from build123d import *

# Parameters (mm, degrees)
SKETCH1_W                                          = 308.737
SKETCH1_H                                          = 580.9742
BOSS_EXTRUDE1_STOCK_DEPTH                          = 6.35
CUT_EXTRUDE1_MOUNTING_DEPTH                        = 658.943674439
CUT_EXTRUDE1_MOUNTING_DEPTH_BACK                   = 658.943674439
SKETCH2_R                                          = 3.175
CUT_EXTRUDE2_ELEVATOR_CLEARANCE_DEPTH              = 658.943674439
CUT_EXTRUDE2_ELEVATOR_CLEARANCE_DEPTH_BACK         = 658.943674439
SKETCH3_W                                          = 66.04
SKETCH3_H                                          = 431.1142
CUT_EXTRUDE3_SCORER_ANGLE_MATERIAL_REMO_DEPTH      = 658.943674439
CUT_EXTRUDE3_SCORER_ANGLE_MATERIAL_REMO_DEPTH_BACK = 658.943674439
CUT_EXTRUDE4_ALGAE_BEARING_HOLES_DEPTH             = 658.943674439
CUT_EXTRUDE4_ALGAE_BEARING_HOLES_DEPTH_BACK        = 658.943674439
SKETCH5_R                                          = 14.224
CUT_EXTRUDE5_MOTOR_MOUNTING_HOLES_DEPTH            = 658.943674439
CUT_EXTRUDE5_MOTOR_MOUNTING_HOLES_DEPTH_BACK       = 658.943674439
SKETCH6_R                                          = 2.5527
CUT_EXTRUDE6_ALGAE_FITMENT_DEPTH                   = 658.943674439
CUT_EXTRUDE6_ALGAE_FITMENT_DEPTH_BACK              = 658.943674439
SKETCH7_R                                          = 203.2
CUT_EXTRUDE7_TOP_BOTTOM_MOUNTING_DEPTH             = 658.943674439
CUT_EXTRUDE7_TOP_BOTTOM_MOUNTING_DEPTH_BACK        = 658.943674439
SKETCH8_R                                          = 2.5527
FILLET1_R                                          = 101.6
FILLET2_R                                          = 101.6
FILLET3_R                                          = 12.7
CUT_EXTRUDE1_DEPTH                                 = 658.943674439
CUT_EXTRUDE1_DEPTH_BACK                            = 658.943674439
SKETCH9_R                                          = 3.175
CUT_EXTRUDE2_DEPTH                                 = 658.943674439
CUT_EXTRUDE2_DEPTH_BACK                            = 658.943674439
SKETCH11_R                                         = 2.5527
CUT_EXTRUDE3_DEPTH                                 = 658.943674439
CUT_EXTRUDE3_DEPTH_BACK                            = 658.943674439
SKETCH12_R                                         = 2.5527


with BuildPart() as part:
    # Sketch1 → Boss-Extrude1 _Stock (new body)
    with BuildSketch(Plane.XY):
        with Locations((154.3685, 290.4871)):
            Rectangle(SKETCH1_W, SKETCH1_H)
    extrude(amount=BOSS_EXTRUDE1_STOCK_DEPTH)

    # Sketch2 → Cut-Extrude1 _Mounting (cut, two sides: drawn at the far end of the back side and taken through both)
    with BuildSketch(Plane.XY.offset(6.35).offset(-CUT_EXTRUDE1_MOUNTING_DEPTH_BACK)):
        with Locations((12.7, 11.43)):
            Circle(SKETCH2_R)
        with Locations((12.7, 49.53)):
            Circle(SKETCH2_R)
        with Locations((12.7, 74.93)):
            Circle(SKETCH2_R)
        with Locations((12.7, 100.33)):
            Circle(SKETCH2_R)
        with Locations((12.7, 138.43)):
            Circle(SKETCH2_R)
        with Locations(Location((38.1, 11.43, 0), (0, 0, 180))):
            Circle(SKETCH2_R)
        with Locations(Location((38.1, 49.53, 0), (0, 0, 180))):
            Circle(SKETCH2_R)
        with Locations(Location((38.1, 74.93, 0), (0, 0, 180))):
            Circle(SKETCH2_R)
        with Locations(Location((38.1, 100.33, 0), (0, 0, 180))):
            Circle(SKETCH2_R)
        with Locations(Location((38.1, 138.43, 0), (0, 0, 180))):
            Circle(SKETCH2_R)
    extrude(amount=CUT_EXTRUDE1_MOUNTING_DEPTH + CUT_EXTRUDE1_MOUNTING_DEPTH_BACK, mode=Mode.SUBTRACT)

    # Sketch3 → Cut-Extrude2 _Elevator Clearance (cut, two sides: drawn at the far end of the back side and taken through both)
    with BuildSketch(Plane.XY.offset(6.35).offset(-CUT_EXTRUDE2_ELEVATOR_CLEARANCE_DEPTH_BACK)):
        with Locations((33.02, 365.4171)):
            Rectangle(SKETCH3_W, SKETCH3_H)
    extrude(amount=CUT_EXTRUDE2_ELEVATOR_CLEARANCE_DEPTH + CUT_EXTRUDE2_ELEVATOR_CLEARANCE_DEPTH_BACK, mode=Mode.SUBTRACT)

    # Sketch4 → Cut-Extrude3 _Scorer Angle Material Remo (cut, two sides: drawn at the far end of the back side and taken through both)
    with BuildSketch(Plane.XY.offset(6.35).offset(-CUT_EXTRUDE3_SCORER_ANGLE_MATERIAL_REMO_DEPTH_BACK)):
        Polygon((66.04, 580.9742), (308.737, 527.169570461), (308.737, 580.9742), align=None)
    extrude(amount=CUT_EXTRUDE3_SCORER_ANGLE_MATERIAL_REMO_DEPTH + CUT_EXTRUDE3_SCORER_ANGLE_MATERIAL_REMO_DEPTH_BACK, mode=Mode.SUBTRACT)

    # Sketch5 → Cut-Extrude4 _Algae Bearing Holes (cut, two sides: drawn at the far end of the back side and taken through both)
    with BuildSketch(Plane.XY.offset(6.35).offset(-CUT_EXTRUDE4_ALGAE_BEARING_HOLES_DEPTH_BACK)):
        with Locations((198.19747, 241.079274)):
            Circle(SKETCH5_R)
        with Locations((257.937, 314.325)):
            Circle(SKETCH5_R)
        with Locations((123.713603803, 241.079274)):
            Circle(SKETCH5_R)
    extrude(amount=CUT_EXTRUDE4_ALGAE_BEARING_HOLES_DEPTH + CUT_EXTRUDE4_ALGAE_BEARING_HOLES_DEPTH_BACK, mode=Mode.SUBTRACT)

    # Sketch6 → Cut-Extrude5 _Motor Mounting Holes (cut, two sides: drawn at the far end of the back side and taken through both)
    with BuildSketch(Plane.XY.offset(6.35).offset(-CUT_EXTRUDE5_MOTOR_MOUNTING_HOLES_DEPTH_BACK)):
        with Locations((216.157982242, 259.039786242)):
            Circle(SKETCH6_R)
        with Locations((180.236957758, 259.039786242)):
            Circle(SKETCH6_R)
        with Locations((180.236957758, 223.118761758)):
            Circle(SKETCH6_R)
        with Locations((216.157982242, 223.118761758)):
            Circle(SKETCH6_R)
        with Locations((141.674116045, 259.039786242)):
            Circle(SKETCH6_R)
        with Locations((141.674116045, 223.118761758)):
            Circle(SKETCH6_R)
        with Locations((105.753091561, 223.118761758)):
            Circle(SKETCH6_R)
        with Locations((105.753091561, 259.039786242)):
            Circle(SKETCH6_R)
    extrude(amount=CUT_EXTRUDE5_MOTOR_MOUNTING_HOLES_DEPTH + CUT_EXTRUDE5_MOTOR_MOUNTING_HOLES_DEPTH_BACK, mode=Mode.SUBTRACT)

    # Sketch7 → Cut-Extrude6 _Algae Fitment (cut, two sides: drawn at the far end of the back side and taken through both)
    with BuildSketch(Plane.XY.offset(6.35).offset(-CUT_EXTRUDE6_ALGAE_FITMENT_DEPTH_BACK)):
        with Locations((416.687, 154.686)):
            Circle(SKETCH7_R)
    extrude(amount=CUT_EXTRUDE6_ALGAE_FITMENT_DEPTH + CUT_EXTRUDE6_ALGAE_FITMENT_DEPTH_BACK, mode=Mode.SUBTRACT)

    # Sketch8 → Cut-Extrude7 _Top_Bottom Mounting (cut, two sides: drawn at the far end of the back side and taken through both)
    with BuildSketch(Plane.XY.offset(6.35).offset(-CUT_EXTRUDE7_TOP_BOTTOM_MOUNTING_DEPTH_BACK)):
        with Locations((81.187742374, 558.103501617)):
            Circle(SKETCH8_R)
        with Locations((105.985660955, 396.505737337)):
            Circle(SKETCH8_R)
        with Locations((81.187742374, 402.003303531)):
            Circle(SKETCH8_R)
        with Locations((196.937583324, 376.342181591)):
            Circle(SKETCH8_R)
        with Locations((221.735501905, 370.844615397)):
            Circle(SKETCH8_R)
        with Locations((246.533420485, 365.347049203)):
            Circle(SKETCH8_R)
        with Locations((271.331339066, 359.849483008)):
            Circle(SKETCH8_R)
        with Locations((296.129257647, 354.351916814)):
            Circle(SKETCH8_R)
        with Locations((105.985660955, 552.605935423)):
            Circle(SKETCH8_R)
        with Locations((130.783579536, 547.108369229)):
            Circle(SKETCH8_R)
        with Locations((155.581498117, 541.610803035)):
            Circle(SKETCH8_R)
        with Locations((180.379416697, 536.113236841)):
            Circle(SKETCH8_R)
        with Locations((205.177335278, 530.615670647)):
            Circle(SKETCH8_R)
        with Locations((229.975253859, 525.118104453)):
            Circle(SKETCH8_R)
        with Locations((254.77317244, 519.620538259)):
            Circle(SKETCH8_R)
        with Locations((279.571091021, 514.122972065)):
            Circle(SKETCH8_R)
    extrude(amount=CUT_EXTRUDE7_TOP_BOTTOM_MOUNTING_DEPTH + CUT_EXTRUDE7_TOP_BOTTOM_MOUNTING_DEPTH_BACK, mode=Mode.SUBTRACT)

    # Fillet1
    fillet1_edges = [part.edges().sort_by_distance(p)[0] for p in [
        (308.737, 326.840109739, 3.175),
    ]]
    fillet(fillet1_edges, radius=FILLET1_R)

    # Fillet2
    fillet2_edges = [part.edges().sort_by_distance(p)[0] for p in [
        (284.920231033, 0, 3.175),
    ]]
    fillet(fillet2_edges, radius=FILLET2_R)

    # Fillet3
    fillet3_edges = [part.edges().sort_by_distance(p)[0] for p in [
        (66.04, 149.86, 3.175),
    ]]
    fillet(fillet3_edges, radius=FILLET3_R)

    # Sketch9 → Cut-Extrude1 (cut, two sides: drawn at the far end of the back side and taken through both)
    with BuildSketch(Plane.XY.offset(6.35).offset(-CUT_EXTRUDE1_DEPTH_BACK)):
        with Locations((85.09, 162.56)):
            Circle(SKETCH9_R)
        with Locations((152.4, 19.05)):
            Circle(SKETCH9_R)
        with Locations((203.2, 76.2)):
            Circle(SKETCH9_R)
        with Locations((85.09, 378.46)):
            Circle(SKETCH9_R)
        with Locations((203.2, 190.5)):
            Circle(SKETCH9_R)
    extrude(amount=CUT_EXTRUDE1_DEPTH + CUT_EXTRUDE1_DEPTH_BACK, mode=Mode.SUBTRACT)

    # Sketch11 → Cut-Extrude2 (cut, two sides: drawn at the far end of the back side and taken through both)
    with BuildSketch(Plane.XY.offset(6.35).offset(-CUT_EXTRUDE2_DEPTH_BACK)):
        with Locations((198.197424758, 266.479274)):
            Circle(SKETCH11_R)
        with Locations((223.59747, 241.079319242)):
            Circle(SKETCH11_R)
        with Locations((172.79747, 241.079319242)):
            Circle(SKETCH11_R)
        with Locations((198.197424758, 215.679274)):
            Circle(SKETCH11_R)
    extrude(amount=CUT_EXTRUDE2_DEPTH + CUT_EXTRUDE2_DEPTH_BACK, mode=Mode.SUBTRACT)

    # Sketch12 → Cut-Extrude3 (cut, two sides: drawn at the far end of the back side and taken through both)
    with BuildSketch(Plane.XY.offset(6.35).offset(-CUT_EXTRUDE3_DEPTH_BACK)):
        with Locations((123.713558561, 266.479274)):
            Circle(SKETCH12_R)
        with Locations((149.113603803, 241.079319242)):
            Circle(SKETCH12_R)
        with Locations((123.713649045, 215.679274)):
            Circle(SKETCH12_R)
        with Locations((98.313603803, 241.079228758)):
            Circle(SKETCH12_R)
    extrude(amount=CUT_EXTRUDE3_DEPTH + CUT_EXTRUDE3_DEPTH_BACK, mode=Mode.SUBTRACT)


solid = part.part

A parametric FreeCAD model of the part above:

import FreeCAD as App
import Part
import Sketcher

V = App.Vector
Q = App.Units.Quantity


def edges_at(feature, points):
    """Names of the edges that pass closest to the given points."""
    edges = feature.Shape.Edges
    near = lambda p: min(range(len(edges)), key=lambda i: edges[i].distToShape(Part.Vertex(*p))[0])
    return sorted({f"Edge{near(p) + 1}" for p in points})

doc = App.newDocument("Part")
body = doc.addObject("PartDesign::Body", "Body")

# Sketch on XY plane
sketch1 = doc.addObject("Sketcher::SketchObject", "Sketch")
body.addObject(sketch1)
sketch1.AttachmentSupport = (doc.XY_Plane, [""])
sketch1.MapMode = "FlatFace"
sketch1.addGeometry(Part.LineSegment(V(0, 581, 0), V(0, 0, 0)), False)
sketch1.addGeometry(Part.LineSegment(V(0, 0, 0), V(309, 0, 0)), False)
sketch1.addGeometry(Part.LineSegment(V(309, 0, 0), V(309, 581, 0)), False)
sketch1.addGeometry(Part.LineSegment(V(309, 581, 0), V(0, 581, 0)), False)
sketch1.addConstraint(Sketcher.Constraint("Coincident", 0, 2, 1, 1))
sketch1.addConstraint(Sketcher.Constraint("Coincident", 1, 2, 2, 1))
sketch1.addConstraint(Sketcher.Constraint("Coincident", 2, 2, 3, 1))
sketch1.addConstraint(Sketcher.Constraint("Coincident", 3, 2, 0, 1))
sketch1.addConstraint(Sketcher.Constraint("Vertical", 0))
sketch1.addConstraint(Sketcher.Constraint("Horizontal", 1))
sketch1.addConstraint(Sketcher.Constraint("Vertical", 2))
sketch1.addConstraint(Sketcher.Constraint("Horizontal", 3))
sketch1.addConstraint(Sketcher.Constraint("Coincident", 0, 2, -1, 1))
sketch1.addConstraint(Sketcher.Constraint("DistanceX", 1, 1, 1, 2, Q("12.155 in")))
sketch1.addConstraint(Sketcher.Constraint("DistanceY", 0, 2, 0, 1, Q("22.873 in")))
pad1 = doc.addObject("PartDesign::Pad", "Pad")
body.addObject(pad1)
pad1.Profile = sketch1
pad1.Length = Q("0.25 in")

# Sketch on XY plane
sketch2 = doc.addObject("Sketcher::SketchObject", "Sketch001")
body.addObject(sketch2)
sketch2.AttachmentSupport = (doc.XY_Plane, [""])
sketch2.MapMode = "FlatFace"
sketch2.AttachmentOffset = App.Placement(V(0, 0, 0.25 * 25.4), App.Rotation())
sketch2.addGeometry(Part.Circle(V(12.7, 11.4, 0), V(0, 0, 1), 3.2), False)
sketch2.addGeometry(Part.Circle(V(12.7, 49.5, 0), V(0, 0, 1), 3.2), False)
sketch2.addGeometry(Part.Circle(V(12.7, 74.9, 0), V(0, 0, 1), 3.2), False)
sketch2.addGeometry(Part.Circle(V(12.7, 100.3, 0), V(0, 0, 1), 3.2), False)
sketch2.addGeometry(Part.Circle(V(12.7, 138.4, 0), V(0, 0, 1), 3.2), False)
sketch2.addGeometry(Part.Circle(V(38.1, 11.4, 0), V(0, 0, 1), 3.2), False)
sketch2.addGeometry(Part.Circle(V(38.1, 49.5, 0), V(0, 0, 1), 3.2), False)
sketch2.addGeometry(Part.Circle(V(38.1, 74.9, 0), V(0, 0, 1), 3.2), False)
sketch2.addGeometry(Part.Circle(V(38.1, 100.3, 0), V(0, 0, 1), 3.2), False)
sketch2.addGeometry(Part.Circle(V(38.1, 138.4, 0), V(0, 0, 1), 3.2), False)
sketch2.addConstraint(Sketcher.Constraint("Equal", 0, 1))
sketch2.addConstraint(Sketcher.Constraint("Equal", 1, 2))
sketch2.addConstraint(Sketcher.Constraint("Equal", 2, 3))
sketch2.addConstraint(Sketcher.Constraint("Equal", 3, 4))
sketch2.addConstraint(Sketcher.Constraint("Equal", 4, 5))
sketch2.addConstraint(Sketcher.Constraint("Equal", 5, 6))
sketch2.addConstraint(Sketcher.Constraint("Equal", 6, 7))
sketch2.addConstraint(Sketcher.Constraint("Equal", 7, 8))
sketch2.addConstraint(Sketcher.Constraint("Equal", 8, 9))
sketch2.addConstraint(Sketcher.Constraint("Horizontal", 0, 3, 5, 3))
sketch2.addConstraint(Sketcher.Constraint("Horizontal", 1, 3, 6, 3))
sketch2.addConstraint(Sketcher.Constraint("Horizontal", 2, 3, 7, 3))
sketch2.addConstraint(Sketcher.Constraint("Horizontal", 3, 3, 8, 3))
sketch2.addConstraint(Sketcher.Constraint("Horizontal", 4, 3, 9, 3))
sketch2.addConstraint(Sketcher.Constraint("Vertical", 0, 3, 1, 3))
sketch2.addConstraint(Sketcher.Constraint("Vertical", 1, 3, 2, 3))
sketch2.addConstraint(Sketcher.Constraint("Vertical", 2, 3, 3, 3))
sketch2.addConstraint(Sketcher.Constraint("Vertical", 3, 3, 4, 3))
sketch2.addConstraint(Sketcher.Constraint("Vertical", 5, 3, 6, 3))
sketch2.addConstraint(Sketcher.Constraint("Vertical", 6, 3, 7, 3))
sketch2.addConstraint(Sketcher.Constraint("Vertical", 7, 3, 8, 3))
sketch2.addConstraint(Sketcher.Constraint("Vertical", 8, 3, 9, 3))
sketch2.addConstraint(Sketcher.Constraint("Diameter", 0, Q("0.25 in")))
sketch2.addConstraint(Sketcher.Constraint("DistanceY", 1, 3, 2, 3, Q("1 in")))
sketch2.addConstraint(Sketcher.Constraint("DistanceY", 2, 3, 3, 3, Q("1 in")))
sketch2.addConstraint(Sketcher.Constraint("DistanceY", 0, 3, 4, 3, Q("5 in")))
sketch2.addConstraint(Sketcher.Constraint("DistanceX", 0, 3, 5, 3, Q("1 in")))
sketch2.addConstraint(Sketcher.Constraint("DistanceX", -1, 1, 0, 3, Q("0.5 in")))
sketch2.addConstraint(Sketcher.Constraint("DistanceY", 0, 3, 1, 3, Q("1.5 in")))
sketch2.addConstraint(Sketcher.Constraint("DistanceY", -1, 1, 0, 3, Q("0.45 in")))
pocket1 = doc.addObject("PartDesign::Pocket", "Pocket")
body.addObject(pocket1)
pocket1.Profile = sketch2
pocket1.Type = "ThroughAll"
pocket1.Midplane = True

# Sketch on XY plane
sketch3 = doc.addObject("Sketcher::SketchObject", "Sketch002")
body.addObject(sketch3)
sketch3.AttachmentSupport = (doc.XY_Plane, [""])
sketch3.MapMode = "FlatFace"
sketch3.AttachmentOffset = App.Placement(V(0, 0, 0.25 * 25.4), App.Rotation())
sketch3.addGeometry(Part.LineSegment(V(0, 581, 0), V(0, 150, 0)), False)
sketch3.addGeometry(Part.LineSegment(V(0, 150, 0), V(66, 150, 0)), False)
sketch3.addGeometry(Part.LineSegment(V(66, 150, 0), V(66, 581, 0)), False)
sketch3.addGeometry(Part.LineSegment(V(66, 581, 0), V(0, 581, 0)), False)
sketch3.addConstraint(Sketcher.Constraint("Coincident", 0, 2, 1, 1))
sketch3.addConstraint(Sketcher.Constraint("Coincident", 1, 2, 2, 1))
sketch3.addConstraint(Sketcher.Constraint("Coincident", 2, 2, 3, 1))
sketch3.addConstraint(Sketcher.Constraint("Coincident", 3, 2, 0, 1))
sketch3.addConstraint(Sketcher.Constraint("Vertical", 0))
sketch3.addConstraint(Sketcher.Constraint("Horizontal", 1))
sketch3.addConstraint(Sketcher.Constraint("Vertical", 2))
sketch3.addConstraint(Sketcher.Constraint("Horizontal", 3))
sketch3.addConstraint(Sketcher.Constraint("PointOnObject", 0, 2, -2))
sketch3.addConstraint(Sketcher.Constraint("DistanceX", 1, 1, 1, 2, Q("2.6 in")))
sketch3.addConstraint(Sketcher.Constraint("DistanceY", -1, 1, 0, 2, Q("5.9 in")))
sketch3.addConstraint(Sketcher.Constraint("DistanceY", 0, 2, 0, 1, Q("16.973 in")))
pocket2 = doc.addObject("PartDesign::Pocket", "Pocket001")
body.addObject(pocket2)
pocket2.Profile = sketch3
pocket2.Type = "ThroughAll"
pocket2.Midplane = True

# Sketch on XY plane
sketch4 = doc.addObject("Sketcher::SketchObject", "Sketch003")
body.addObject(sketch4)
sketch4.AttachmentSupport = (doc.XY_Plane, [""])
sketch4.MapMode = "FlatFace"
sketch4.AttachmentOffset = App.Placement(V(0, 0, 0.25 * 25.4), App.Rotation())
sketch4.addGeometry(Part.LineSegment(V(66, 581, 0), V(309, 527, 0)), False)
sketch4.addGeometry(Part.LineSegment(V(309, 527, 0), V(309, 581, 0)), False)
sketch4.addGeometry(Part.LineSegment(V(309, 581, 0), V(66, 581, 0)), False)
sketch4.addConstraint(Sketcher.Constraint("Coincident", 0, 2, 1, 1))
sketch4.addConstraint(Sketcher.Constraint("Coincident", 1, 2, 2, 1))
sketch4.addConstraint(Sketcher.Constraint("Coincident", 2, 2, 0, 1))
sketch4.addConstraint(Sketcher.Constraint("Vertical", 1))
sketch4.addConstraint(Sketcher.Constraint("Horizontal", 2))
sketch4.addConstraint(Sketcher.Constraint("DistanceX", -1, 1, 2, 2, Q("2.6 in")))
sketch4.addConstraint(Sketcher.Constraint("Angle", 0, Q("-12.5 deg")))
sketch4.addConstraint(Sketcher.Constraint("DistanceX", 2, 2, 2, 1, Q("9.555 in")))
sketch4.addConstraint(Sketcher.Constraint("DistanceY", -1, 1, 1, 2, Q("22.873 in")))
pocket3 = doc.addObject("PartDesign::Pocket", "Pocket002")
body.addObject(pocket3)
pocket3.Profile = sketch4
pocket3.Type = "ThroughAll"
pocket3.Midplane = True

# Sketch on XY plane
sketch5 = doc.addObject("Sketcher::SketchObject", "Sketch004")
body.addObject(sketch5)
sketch5.AttachmentSupport = (doc.XY_Plane, [""])
sketch5.MapMode = "FlatFace"
sketch5.AttachmentOffset = App.Placement(V(0, 0, 0.25 * 25.4), App.Rotation())
sketch5.addGeometry(Part.Circle(V(198, 241, 0), V(0, 0, 1), 14), False)
sketch5.addGeometry(Part.Circle(V(258, 314, 0), V(0, 0, 1), 14), False)
sketch5.addGeometry(Part.Circle(V(124, 241, 0), V(0, 0, 1), 14), False)
sketch5.addConstraint(Sketcher.Constraint("Equal", 0, 1))
sketch5.addConstraint(Sketcher.Constraint("Equal", 1, 2))
sketch5.addConstraint(Sketcher.Constraint("Horizontal", 0, 3, 2, 3))
sketch5.addConstraint(Sketcher.Constraint("Diameter", 0, Q("1.12 in")))
sketch5.addConstraint(Sketcher.Constraint("DistanceX", -1, 1, 1, 3, Q("10.155 in")))
sketch5.addConstraint(Sketcher.Constraint("DistanceY", -1, 1, 1, 3, Q("12.375 in")))
sketch5.addConstraint(Sketcher.Constraint("DistanceX", -1, 1, 0, 3, 198.19747))
sketch5.addConstraint(Sketcher.Constraint("DistanceY", -1, 1, 0, 3, 241.079274))
sketch5.addConstraint(Sketcher.Constraint("DistanceX", -1, 1, 2, 3, 123.713604))
pocket4 = doc.addObject("PartDesign::Pocket", "Pocket003")
body.addObject(pocket4)
pocket4.Profile = sketch5
pocket4.Type = "ThroughAll"
pocket4.Midplane = True

# Sketch on XY plane
sketch6 = doc.addObject("Sketcher::SketchObject", "Sketch005")
body.addObject(sketch6)
sketch6.AttachmentSupport = (doc.XY_Plane, [""])
sketch6.MapMode = "FlatFace"
sketch6.AttachmentOffset = App.Placement(V(0, 0, 0.25 * 25.4), App.Rotation())
sketch6.addGeometry(Part.Circle(V(216.2, 259, 0), V(0, 0, 1), 2.6), False)
sketch6.addGeometry(Part.Circle(V(180.2, 259, 0), V(0, 0, 1), 2.6), False)
sketch6.addGeometry(Part.Circle(V(180.2, 223.1, 0), V(0, 0, 1), 2.6), False)
sketch6.addGeometry(Part.Circle(V(216.2, 223.1, 0), V(0, 0, 1), 2.6), False)
sketch6.addGeometry(Part.Circle(V(141.7, 259, 0), V(0, 0, 1), 2.6), False)
sketch6.addGeometry(Part.Circle(V(141.7, 223.1, 0), V(0, 0, 1), 2.6), False)
sketch6.addGeometry(Part.Circle(V(105.8, 223.1, 0), V(0, 0, 1), 2.6), False)
sketch6.addGeometry(Part.Circle(V(105.8, 259, 0), V(0, 0, 1), 2.6), False)
sketch6.addConstraint(Sketcher.Constraint("Equal", 0, 1))
sketch6.addConstraint(Sketcher.Constraint("Equal", 1, 2))
sketch6.addConstraint(Sketcher.Constraint("Equal", 2, 3))
sketch6.addConstraint(Sketcher.Constraint("Equal", 3, 4))
sketch6.addConstraint(Sketcher.Constraint("Equal", 4, 5))
sketch6.addConstraint(Sketcher.Constraint("Equal", 5, 6))
sketch6.addConstraint(Sketcher.Constraint("Equal", 6, 7))
sketch6.addConstraint(Sketcher.Constraint("Horizontal", 0, 3, 1, 3))
sketch6.addConstraint(Sketcher.Constraint("Horizontal", 2, 3, 3, 3))
sketch6.addConstraint(Sketcher.Constraint("Horizontal", 1, 3, 4, 3))
sketch6.addConstraint(Sketcher.Constraint("Horizontal", 3, 3, 5, 3))
sketch6.addConstraint(Sketcher.Constraint("Horizontal", 5, 3, 6, 3))
sketch6.addConstraint(Sketcher.Constraint("Horizontal", 4, 3, 7, 3))
sketch6.addConstraint(Sketcher.Constraint("Vertical", 1, 3, 2, 3))
sketch6.addConstraint(Sketcher.Constraint("Vertical", 0, 3, 3, 3))
sketch6.addConstraint(Sketcher.Constraint("Vertical", 4, 3, 5, 3))
sketch6.addConstraint(Sketcher.Constraint("Vertical", 6, 3, 7, 3))
sketch6.addConstraint(Sketcher.Constraint("Diameter", 0, Q("0.201 in")))
sketch6.addConstraint(Sketcher.Constraint("DistanceY", -1, 1, 2, 3, 223.118762))
sketch6.addConstraint(Sketcher.Constraint("DistanceX", -1, 1, 6, 3, 105.753092))
sketch6.addConstraint(Sketcher.Constraint("DistanceX", 4, 3, 1, 3, 38.562842))
sketch6.addConstraint(Sketcher.Constraint("DistanceX", 6, 3, 3, 3, 110.404891))
sketch6.addConstraint(Sketcher.Constraint("DistanceY", -1, 1, 0, 3, 259.039786))
sketch6.addConstraint(Sketcher.Constraint("DistanceX", -1, 1, 1, 3, 180.236958))
pocket5 = doc.addObject("PartDesign::Pocket", "Pocket004")
body.addObject(pocket5)
pocket5.Profile = sketch6
pocket5.Type = "ThroughAll"
pocket5.Midplane = True

# Sketch on XY plane
sketch7 = doc.addObject("Sketcher::SketchObject", "Sketch006")
body.addObject(sketch7)
sketch7.AttachmentSupport = (doc.XY_Plane, [""])
sketch7.MapMode = "FlatFace"
sketch7.AttachmentOffset = App.Placement(V(0, 0, 0.25 * 25.4), App.Rotation())
sketch7.addGeometry(Part.Circle(V(417, 155, 0), V(0, 0, 1), 203), False)
sketch7.addConstraint(Sketcher.Constraint("Diameter", 0, Q("16 in")))
sketch7.addConstraint(Sketcher.Constraint("DistanceY", -1, 1, 0, 3, Q("6.09 in")))
sketch7.addConstraint(Sketcher.Constraint("DistanceX", -1, 1, 0, 3, Q("16.405 in")))
pocket6 = doc.addObject("PartDesign::Pocket", "Pocket005")
body.addObject(pocket6)
pocket6.Profile = sketch7
pocket6.Type = "ThroughAll"
pocket6.Midplane = True

# Sketch on XY plane
sketch8 = doc.addObject("Sketcher::SketchObject", "Sketch007")
body.addObject(sketch8)
sketch8.AttachmentSupport = (doc.XY_Plane, [""])
sketch8.MapMode = "FlatFace"
sketch8.AttachmentOffset = App.Placement(V(0, 0, 0.25 * 25.4), App.Rotation())
sketch8.addGeometry(Part.Circle(V(81.2, 558.1, 0), V(0, 0, 1), 2.6), False)
sketch8.addGeometry(Part.Circle(V(106, 396.5, 0), V(0, 0, 1), 2.6), False)
sketch8.addGeometry(Part.Circle(V(81.2, 402, 0), V(0, 0, 1), 2.6), False)
sketch8.addGeometry(Part.Circle(V(196.9, 376.3, 0), V(0, 0, 1), 2.6), False)
sketch8.addGeometry(Part.Circle(V(221.7, 370.8, 0), V(0, 0, 1), 2.6), False)
sketch8.addGeometry(Part.Circle(V(246.5, 365.3, 0), V(0, 0, 1), 2.6), False)
sketch8.addGeometry(Part.Circle(V(271.3, 359.8, 0), V(0, 0, 1), 2.6), False)
sketch8.addGeometry(Part.Circle(V(296.1, 354.4, 0), V(0, 0, 1), 2.6), False)
sketch8.addGeometry(Part.Circle(V(106, 552.6, 0), V(0, 0, 1), 2.6), False)
sketch8.addGeometry(Part.Circle(V(130.8, 547.1, 0), V(0, 0, 1), 2.6), False)
sketch8.addGeometry(Part.Circle(V(155.6, 541.6, 0), V(0, 0, 1), 2.6), False)
sketch8.addGeometry(Part.Circle(V(180.4, 536.1, 0), V(0, 0, 1), 2.6), False)
sketch8.addGeometry(Part.Circle(V(205.2, 530.6, 0), V(0, 0, 1), 2.6), False)
sketch8.addGeometry(Part.Circle(V(230, 525.1, 0), V(0, 0, 1), 2.6), False)
sketch8.addGeometry(Part.Circle(V(254.8, 519.6, 0), V(0, 0, 1), 2.6), False)
sketch8.addGeometry(Part.Circle(V(279.6, 514.1, 0), V(0, 0, 1), 2.6), False)
sketch8.addConstraint(Sketcher.Constraint("Equal", 0, 1))
sketch8.addConstraint(Sketcher.Constraint("Equal", 1, 2))
sketch8.addConstraint(Sketcher.Constraint("Equal", 2, 3))
sketch8.addConstraint(Sketcher.Constraint("Equal", 3, 4))
sketch8.addConstraint(Sketcher.Constraint("Equal", 4, 5))
sketch8.addConstraint(Sketcher.Constraint("Equal", 5, 6))
sketch8.addConstraint(Sketcher.Constraint("Equal", 6, 7))
sketch8.addConstraint(Sketcher.Constraint("Equal", 7, 8))
sketch8.addConstraint(Sketcher.Constraint("Equal", 8, 9))
sketch8.addConstraint(Sketcher.Constraint("Equal", 9, 10))
sketch8.addConstraint(Sketcher.Constraint("Equal", 10, 11))
sketch8.addConstraint(Sketcher.Constraint("Equal", 11, 12))
sketch8.addConstraint(Sketcher.Constraint("Equal", 12, 13))
sketch8.addConstraint(Sketcher.Constraint("Equal", 13, 14))
sketch8.addConstraint(Sketcher.Constraint("Equal", 14, 15))
sketch8.addConstraint(Sketcher.Constraint("Vertical", 0, 3, 2, 3))
sketch8.addConstraint(Sketcher.Constraint("Vertical", 1, 3, 8, 3))
sketch8.addConstraint(Sketcher.Constraint("Diameter", 0, Q("0.201 in")))
sketch8.addConstraint(Sketcher.Constraint("DistanceY", -1, 1, 0, 3, 558.103502))
sketch8.addConstraint(Sketcher.Constraint("DistanceX", -1, 1, 4, 3, 221.735502))
sketch8.addConstraint(Sketcher.Constraint("DistanceX", -1, 1, 10, 3, 155.581498))
sketch8.addConstraint(Sketcher.Constraint("DistanceY", 2, 3, 0, 3, 156.100198))
sketch8.addConstraint(Sketcher.Constraint("DistanceY", 6, 3, 3, 3, 16.492699))
sketch8.addConstraint(Sketcher.Constraint("DistanceY", 7, 3, 4, 3, 16.492699))
sketch8.addConstraint(Sketcher.Constraint("DistanceY", 1, 3, 8, 3, 156.100198))
sketch8.addConstraint(Sketcher.Constraint("DistanceY", 10, 3, 0, 3, 16.492699))
sketch8.addConstraint(Sketcher.Constraint("DistanceY", 11, 3, 8, 3, 16.492699))
sketch8.addConstraint(Sketcher.Constraint("DistanceY", 12, 3, 9, 3, 16.492699))
sketch8.addConstraint(Sketcher.Constraint("DistanceY", 13, 3, 10, 3, 16.492699))
sketch8.addConstraint(Sketcher.Constraint("DistanceY", 14, 3, 11, 3, 16.492699))
sketch8.addConstraint(Sketcher.Constraint("DistanceY", 15, 3, 12, 3, 16.492699))
sketch8.addConstraint(Sketcher.Constraint("DistanceX", -1, 1, 1, 3, 105.985661))
sketch8.addConstraint(Sketcher.Constraint("DistanceY", -1, 1, 3, 3, 376.342182))
sketch8.addConstraint(Sketcher.Constraint("DistanceX", -1, 1, 5, 3, 246.53342))
sketch8.addConstraint(Sketcher.Constraint("DistanceY", -1, 1, 5, 3, 365.347049))
sketch8.addConstraint(Sketcher.Constraint("DistanceX", -1, 1, 6, 3, 271.331339))
sketch8.addConstraint(Sketcher.Constraint("DistanceX", -1, 1, 9, 3, 130.78358))
sketch8.addConstraint(Sketcher.Constraint("DistanceY", -1, 1, 9, 3, 547.108369))
sketch8.addConstraint(Sketcher.Constraint("DistanceY", -1, 1, 14, 3, 519.620538))
sketch8.addConstraint(Sketcher.Constraint("DistanceX", -1, 1, 15, 3, 279.571091))
sketch8.addConstraint(Sketcher.Constraint("DistanceX", 0, 3, 1, 3, 24.797919))
sketch8.addConstraint(Sketcher.Constraint("DistanceX", 2, 3, 3, 3, 115.749841))
sketch8.addConstraint(Sketcher.Constraint("DistanceY", 4, 3, 1, 3, 25.661122))
sketch8.addConstraint(Sketcher.Constraint("DistanceX", 6, 3, 7, 3, 24.797919))
sketch8.addConstraint(Sketcher.Constraint("DistanceX", 10, 3, 11, 3, 24.797919))
sketch8.addConstraint(Sketcher.Constraint("DistanceX", 11, 3, 12, 3, 24.797919))
sketch8.addConstraint(Sketcher.Constraint("DistanceX", 12, 3, 13, 3, 24.797919))
sketch8.addConstraint(Sketcher.Constraint("DistanceX", 13, 3, 14, 3, 24.797919))
pocket7 = doc.addObject("PartDesign::Pocket", "Pocket006")
body.addObject(pocket7)
pocket7.Profile = sketch8
pocket7.Type = "ThroughAll"
pocket7.Midplane = True
doc.recompute()

fillet = doc.addObject("PartDesign::Fillet", "Fillet")
body.addObject(fillet)
fillet.Base = (pocket7, edges_at(pocket7, [(308.737, 326.84, 3.175)]))
fillet.Radius = Q("4 in")
doc.recompute()

fillet2 = doc.addObject("PartDesign::Fillet", "Fillet001")
body.addObject(fillet2)
fillet2.Base = (fillet, edges_at(fillet, [(284.92, 0, 3.175)]))
fillet2.Radius = Q("4 in")
doc.recompute()

fillet3 = doc.addObject("PartDesign::Fillet", "Fillet002")
body.addObject(fillet3)
fillet3.Base = (fillet2, edges_at(fillet2, [(66.04, 149.86, 3.175)]))
fillet3.Radius = Q("0.5 in")

# Sketch on XY plane
sketch9 = doc.addObject("Sketcher::SketchObject", "Sketch008")
body.addObject(sketch9)
sketch9.AttachmentSupport = (doc.XY_Plane, [""])
sketch9.MapMode = "FlatFace"
sketch9.AttachmentOffset = App.Placement(V(0, 0, 0.25 * 25.4), App.Rotation())
sketch9.addGeometry(Part.Circle(V(85.1, 162.6, 0), V(0, 0, 1), 3.2), False)
sketch9.addGeometry(Part.Circle(V(152.4, 19.1, 0), V(0, 0, 1), 3.2), False)
sketch9.addGeometry(Part.Circle(V(203.2, 76.2, 0), V(0, 0, 1), 3.2), False)
sketch9.addGeometry(Part.Circle(V(85.1, 378.5, 0), V(0, 0, 1), 3.2), False)
sketch9.addGeometry(Part.Circle(V(203.2, 190.5, 0), V(0, 0, 1), 3.2), False)
sketch9.addConstraint(Sketcher.Constraint("Equal", 0, 1))
sketch9.addConstraint(Sketcher.Constraint("Equal", 1, 2))
sketch9.addConstraint(Sketcher.Constraint("Equal", 2, 3))
sketch9.addConstraint(Sketcher.Constraint("Equal", 3, 4))
sketch9.addConstraint(Sketcher.Constraint("Vertical", 0, 3, 3, 3))
sketch9.addConstraint(Sketcher.Constraint("Vertical", 2, 3, 4, 3))
sketch9.addConstraint(Sketcher.Constraint("Diameter", 0, Q("0.25 in")))
sketch9.addConstraint(Sketcher.Constraint("DistanceX", -1, 1, 1, 3, Q("6 in")))
sketch9.addConstraint(Sketcher.Constraint("DistanceX", -1, 1, 2, 3, Q("8 in")))
sketch9.addConstraint(Sketcher.Constraint("DistanceY", -1, 1, 2, 3, Q("3 in")))
sketch9.addConstraint(Sketcher.Constraint("DistanceY", -1, 1, 0, 3, Q("6.4 in")))
sketch9.addConstraint(Sketcher.Constraint("DistanceY", -1, 1, 3, 3, Q("14.9 in")))
sketch9.addConstraint(Sketcher.Constraint("DistanceY", -1, 1, 4, 3, Q("7.5 in")))
sketch9.addConstraint(Sketcher.Constraint("DistanceX", -1, 1, 0, 3, Q("3.35 in")))
sketch9.addConstraint(Sketcher.Constraint("DistanceY", -1, 1, 1, 3, Q("0.75 in")))
pocket8 = doc.addObject("PartDesign::Pocket", "Pocket007")
body.addObject(pocket8)
pocket8.Profile = sketch9
pocket8.Type = "ThroughAll"
pocket8.Midplane = True

# Sketch on XY plane
sketch10 = doc.addObject("Sketcher::SketchObject", "Sketch009")
body.addObject(sketch10)
sketch10.AttachmentSupport = (doc.XY_Plane, [""])
sketch10.MapMode = "FlatFace"
sketch10.AttachmentOffset = App.Placement(V(0, 0, 0.25 * 25.4), App.Rotation())
sketch10.addGeometry(Part.Circle(V(198.2, 266.5, 0), V(0, 0, 1), 2.6), False)
sketch10.addGeometry(Part.Circle(V(223.6, 241.1, 0), V(0, 0, 1), 2.6), False)
sketch10.addGeometry(Part.Circle(V(172.8, 241.1, 0), V(0, 0, 1), 2.6), False)
sketch10.addGeometry(Part.Circle(V(198.2, 215.7, 0), V(0, 0, 1), 2.6), False)
sketch10.addConstraint(Sketcher.Constraint("Equal", 0, 1))
sketch10.addConstraint(Sketcher.Constraint("Equal", 1, 2))
sketch10.addConstraint(Sketcher.Constraint("Equal", 2, 3))
sketch10.addConstraint(Sketcher.Constraint("Horizontal", 1, 3, 2, 3))
sketch10.addConstraint(Sketcher.Constraint("Vertical", 0, 3, 3, 3))
sketch10.addConstraint(Sketcher.Constraint("Diameter", 0, Q("0.201 in")))
sketch10.addConstraint(Sketcher.Constraint("DistanceX", 2, 3, 1, 3, Q("2 in")))
sketch10.addConstraint(Sketcher.Constraint("DistanceY", 3, 3, 0, 3, Q("2 in")))
sketch10.addConstraint(Sketcher.Constraint("DistanceX", -1, 1, 1, 3, 223.59747))
sketch10.addConstraint(Sketcher.Constraint("DistanceY", -1, 1, 1, 3, 241.079319))
sketch10.addConstraint(Sketcher.Constraint("DistanceX", -1, 1, 0, 3, 198.197425))
sketch10.addConstraint(Sketcher.Constraint("DistanceY", -1, 1, 0, 3, 266.479274))
pocket9 = doc.addObject("PartDesign::Pocket", "Pocket008")
body.addObject(pocket9)
pocket9.Profile = sketch10
pocket9.Type = "ThroughAll"
pocket9.Midplane = True

# Sketch on XY plane
sketch11 = doc.addObject("Sketcher::SketchObject", "Sketch010")
body.addObject(sketch11)
sketch11.AttachmentSupport = (doc.XY_Plane, [""])
sketch11.MapMode = "FlatFace"
sketch11.AttachmentOffset = App.Placement(V(0, 0, 0.25 * 25.4), App.Rotation())
sketch11.addGeometry(Part.Circle(V(123.7, 266.5, 0), V(0, 0, 1), 2.6), False)
sketch11.addGeometry(Part.Circle(V(149.1, 241.1, 0), V(0, 0, 1), 2.6), False)
sketch11.addGeometry(Part.Circle(V(123.7, 215.7, 0), V(0, 0, 1), 2.6), False)
sketch11.addGeometry(Part.Circle(V(98.3, 241.1, 0), V(0, 0, 1), 2.6), False)
sketch11.addConstraint(Sketcher.Constraint("Equal", 0, 1))
sketch11.addConstraint(Sketcher.Constraint("Equal", 1, 2))
sketch11.addConstraint(Sketcher.Constraint("Equal", 2, 3))
sketch11.addConstraint(Sketcher.Constraint("Diameter", 0, Q("0.201 in")))
sketch11.addConstraint(Sketcher.Constraint("DistanceY", 2, 3, 0, 3, Q("2 in")))
sketch11.addConstraint(Sketcher.Constraint("DistanceX", 3, 3, 1, 3, Q("2 in")))
sketch11.addConstraint(Sketcher.Constraint("DistanceX", -1, 1, 0, 3, 123.713559))
sketch11.addConstraint(Sketcher.Constraint("DistanceY", -1, 1, 1, 3, 241.079319))
sketch11.addConstraint(Sketcher.Constraint("DistanceX", -1, 1, 2, 3, 123.713649))
sketch11.addConstraint(Sketcher.Constraint("DistanceY", -1, 1, 3, 3, 241.079229))
sketch11.addConstraint(Sketcher.Constraint("DistanceY", -1, 1, 0, 3, 266.479274))
sketch11.addConstraint(Sketcher.Constraint("DistanceX", -1, 1, 1, 3, 149.113604))
pocket10 = doc.addObject("PartDesign::Pocket", "Pocket009")
body.addObject(pocket10)
pocket10.Profile = sketch11
pocket10.Type = "ThroughAll"
pocket10.Midplane = True

doc.recompute()
